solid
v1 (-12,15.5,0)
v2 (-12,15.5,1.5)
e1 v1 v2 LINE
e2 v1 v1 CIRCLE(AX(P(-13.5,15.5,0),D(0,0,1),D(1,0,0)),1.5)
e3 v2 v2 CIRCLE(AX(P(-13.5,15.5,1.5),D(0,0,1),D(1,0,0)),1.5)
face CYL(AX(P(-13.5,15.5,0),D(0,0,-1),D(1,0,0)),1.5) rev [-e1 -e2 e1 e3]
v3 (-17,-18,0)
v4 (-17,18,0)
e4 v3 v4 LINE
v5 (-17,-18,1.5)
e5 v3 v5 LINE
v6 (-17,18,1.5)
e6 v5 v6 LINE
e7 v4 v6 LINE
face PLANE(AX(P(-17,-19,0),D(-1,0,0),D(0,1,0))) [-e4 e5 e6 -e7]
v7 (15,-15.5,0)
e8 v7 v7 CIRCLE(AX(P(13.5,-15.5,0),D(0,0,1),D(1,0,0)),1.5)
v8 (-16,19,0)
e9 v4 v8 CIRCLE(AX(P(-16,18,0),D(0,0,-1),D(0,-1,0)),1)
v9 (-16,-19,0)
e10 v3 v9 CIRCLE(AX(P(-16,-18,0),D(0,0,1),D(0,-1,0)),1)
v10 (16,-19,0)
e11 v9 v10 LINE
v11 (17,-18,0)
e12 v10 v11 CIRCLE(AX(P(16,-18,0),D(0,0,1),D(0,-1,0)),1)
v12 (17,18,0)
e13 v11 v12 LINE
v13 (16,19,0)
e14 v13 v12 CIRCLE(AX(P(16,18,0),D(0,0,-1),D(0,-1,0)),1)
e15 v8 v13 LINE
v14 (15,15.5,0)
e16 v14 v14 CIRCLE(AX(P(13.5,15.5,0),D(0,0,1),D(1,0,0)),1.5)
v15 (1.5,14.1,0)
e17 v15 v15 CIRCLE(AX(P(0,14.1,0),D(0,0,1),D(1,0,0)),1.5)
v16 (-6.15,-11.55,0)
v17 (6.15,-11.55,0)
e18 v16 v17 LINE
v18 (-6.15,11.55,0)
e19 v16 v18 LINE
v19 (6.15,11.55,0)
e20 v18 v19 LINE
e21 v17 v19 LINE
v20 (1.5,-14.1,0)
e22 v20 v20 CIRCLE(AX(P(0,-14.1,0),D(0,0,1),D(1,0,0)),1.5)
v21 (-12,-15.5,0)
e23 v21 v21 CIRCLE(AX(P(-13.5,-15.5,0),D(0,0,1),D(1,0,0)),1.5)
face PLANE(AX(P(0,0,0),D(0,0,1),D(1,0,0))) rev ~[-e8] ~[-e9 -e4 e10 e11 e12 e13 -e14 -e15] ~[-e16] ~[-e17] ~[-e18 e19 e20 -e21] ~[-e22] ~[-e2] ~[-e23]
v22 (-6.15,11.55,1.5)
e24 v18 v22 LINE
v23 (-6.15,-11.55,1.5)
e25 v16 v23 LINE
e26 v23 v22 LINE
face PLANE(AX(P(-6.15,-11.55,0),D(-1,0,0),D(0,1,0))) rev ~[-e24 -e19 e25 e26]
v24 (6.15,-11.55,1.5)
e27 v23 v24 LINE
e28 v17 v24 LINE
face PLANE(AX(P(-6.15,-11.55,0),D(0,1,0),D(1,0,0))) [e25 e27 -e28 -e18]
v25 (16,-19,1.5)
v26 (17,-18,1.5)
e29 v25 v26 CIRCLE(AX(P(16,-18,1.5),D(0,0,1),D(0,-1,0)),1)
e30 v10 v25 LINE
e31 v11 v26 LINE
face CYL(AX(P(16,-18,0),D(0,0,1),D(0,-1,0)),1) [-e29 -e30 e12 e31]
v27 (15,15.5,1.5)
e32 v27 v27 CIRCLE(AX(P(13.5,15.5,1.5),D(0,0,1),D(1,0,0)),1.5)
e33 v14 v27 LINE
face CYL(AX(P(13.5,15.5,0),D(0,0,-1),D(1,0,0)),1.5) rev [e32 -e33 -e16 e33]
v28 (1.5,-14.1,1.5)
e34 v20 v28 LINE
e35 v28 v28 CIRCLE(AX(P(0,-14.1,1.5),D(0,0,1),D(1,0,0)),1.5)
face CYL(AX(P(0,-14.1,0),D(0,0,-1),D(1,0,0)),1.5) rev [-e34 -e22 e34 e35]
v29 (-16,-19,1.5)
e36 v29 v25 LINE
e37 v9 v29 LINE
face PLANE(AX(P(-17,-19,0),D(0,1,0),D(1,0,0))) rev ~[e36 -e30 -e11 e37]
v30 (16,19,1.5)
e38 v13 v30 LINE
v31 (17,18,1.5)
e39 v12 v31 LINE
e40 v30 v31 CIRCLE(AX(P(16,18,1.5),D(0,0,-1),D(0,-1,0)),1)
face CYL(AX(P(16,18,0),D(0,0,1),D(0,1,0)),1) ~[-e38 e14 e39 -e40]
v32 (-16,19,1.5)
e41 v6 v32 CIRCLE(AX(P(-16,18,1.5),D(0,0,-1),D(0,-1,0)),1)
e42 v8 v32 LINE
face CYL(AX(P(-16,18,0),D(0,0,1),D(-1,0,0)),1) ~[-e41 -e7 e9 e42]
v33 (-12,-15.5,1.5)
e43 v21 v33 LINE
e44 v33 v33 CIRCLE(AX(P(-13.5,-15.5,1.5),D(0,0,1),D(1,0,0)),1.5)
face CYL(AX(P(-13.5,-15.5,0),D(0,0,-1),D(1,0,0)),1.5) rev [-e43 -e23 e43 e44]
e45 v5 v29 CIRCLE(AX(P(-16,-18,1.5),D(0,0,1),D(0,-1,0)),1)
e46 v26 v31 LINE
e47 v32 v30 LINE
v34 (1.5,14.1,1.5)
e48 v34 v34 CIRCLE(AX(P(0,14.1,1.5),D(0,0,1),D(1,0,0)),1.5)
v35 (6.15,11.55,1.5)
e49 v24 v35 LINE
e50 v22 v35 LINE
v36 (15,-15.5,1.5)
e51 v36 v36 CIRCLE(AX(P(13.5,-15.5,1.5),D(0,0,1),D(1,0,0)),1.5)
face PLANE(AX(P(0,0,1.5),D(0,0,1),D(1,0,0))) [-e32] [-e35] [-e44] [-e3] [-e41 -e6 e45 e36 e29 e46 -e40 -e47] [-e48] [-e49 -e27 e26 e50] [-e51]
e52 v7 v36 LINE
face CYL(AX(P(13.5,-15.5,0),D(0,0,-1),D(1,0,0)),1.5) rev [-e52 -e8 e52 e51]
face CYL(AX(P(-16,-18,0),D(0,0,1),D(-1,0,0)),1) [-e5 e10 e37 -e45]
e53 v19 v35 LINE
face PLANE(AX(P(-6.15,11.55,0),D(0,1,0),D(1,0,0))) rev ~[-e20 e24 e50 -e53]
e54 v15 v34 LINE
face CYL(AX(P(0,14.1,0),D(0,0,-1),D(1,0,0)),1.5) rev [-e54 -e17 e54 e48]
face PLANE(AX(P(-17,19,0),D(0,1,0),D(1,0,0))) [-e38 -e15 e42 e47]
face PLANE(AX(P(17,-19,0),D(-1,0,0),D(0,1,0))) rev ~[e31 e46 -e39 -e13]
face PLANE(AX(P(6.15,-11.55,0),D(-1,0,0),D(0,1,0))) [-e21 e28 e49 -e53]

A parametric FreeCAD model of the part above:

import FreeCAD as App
import Part
import Sketcher

V = App.Vector
Q = App.Units.Quantity


def edges_at(feature, points):
    """Names of the edges that pass closest to the given points."""
    edges = feature.Shape.Edges
    near = lambda p: min(range(len(edges)), key=lambda i: edges[i].distToShape(Part.Vertex(*p))[0])
    return sorted({f"Edge{near(p) + 1}" for p in points})

doc = App.newDocument("Part")
body = doc.addObject("PartDesign::Body", "Body")

# Sketch on XY plane
sketch1 = body.newObject("Sketcher::SketchObject", "Sketch")
sketch1.AttachmentSupport = (doc.getObject("XY_Plane"), [""])
sketch1.MapMode = "FlatFace"
sketch1.addGeometry([
    Part.LineSegment(V(-17, 19, 0), V(-17, -19, 0)),  # 0
    Part.LineSegment(V(-17, -19, 0), V(17, -19, 0)),  # 1
    Part.LineSegment(V(17, -19, 0), V(17, 19, 0)),  # 2
    Part.LineSegment(V(17, 19, 0), V(-17, 19, 0)),  # 3
    Part.Circle(V(-13.5, -15.5, 0), V(0, 0, 1), 1.5),  # 4
    Part.Circle(V(0, -14.1, 0), V(0, 0, 1), 1.5),  # 5
    Part.Circle(V(13.5, -15.5, 0), V(0, 0, 1), 1.5),  # 6
    Part.Circle(V(-13.5, 15.5, 0), V(0, 0, 1), 1.5),  # 7
    Part.LineSegment(V(6.2, -11.6, 0), V(-6.2, -11.6, 0)),  # 8
    Part.LineSegment(V(-6.2, -11.6, 0), V(-6.2, 11.6, 0)),  # 9
    Part.LineSegment(V(-6.2, 11.6, 0), V(6.2, 11.6, 0)),  # 10
    Part.LineSegment(V(6.2, 11.6, 0), V(6.2, -11.6, 0)),  # 11
    Part.Circle(V(0, 14.1, 0), V(0, 0, 1), 1.5),  # 12
    Part.Circle(V(13.5, 15.5, 0), V(0, 0, 1), 1.5),  # 13
], False)
sketch1.addConstraint([
    Sketcher.Constraint("Coincident", 0, 2, 1, 1),
    Sketcher.Constraint("Coincident", 1, 2, 2, 1),
    Sketcher.Constraint("Coincident", 2, 2, 3, 1),
    Sketcher.Constraint("Coincident", 3, 2, 0, 1),
    Sketcher.Constraint("Coincident", 8, 2, 9, 1),
    Sketcher.Constraint("Coincident", 9, 2, 10, 1),
    Sketcher.Constraint("Coincident", 10, 2, 11, 1),
    Sketcher.Constraint("Coincident", 11, 2, 8, 1),
    Sketcher.Constraint("Vertical", 0),
    Sketcher.Constraint("Horizontal", 1),
    Sketcher.Constraint("Vertical", 2),
    Sketcher.Constraint("Horizontal", 3),
    Sketcher.Constraint("Horizontal", 8),
    Sketcher.Constraint("Vertical", 9),
    Sketcher.Constraint("Horizontal", 10),
    Sketcher.Constraint("Vertical", 11),
    Sketcher.Constraint("Equal", 4, 5),
    Sketcher.Constraint("Equal", 5, 6),
    Sketcher.Constraint("Equal", 6, 7),
    Sketcher.Constraint("Equal", 7, 12),
    Sketcher.Constraint("Equal", 12, 13),
    Sketcher.Constraint("Symmetric", 6, 3, 7, 3, -1, 1),
    Sketcher.Constraint("Symmetric", 5, 3, 12, 3, -1, 1),
    Sketcher.Constraint("Symmetric", 4, 3, 13, 3, -1, 1),
    Sketcher.Constraint("Symmetric", 0, 2, 2, 2, -1, 1),
    Sketcher.Constraint("Symmetric", 8, 2, 10, 2, -1, 1),
    Sketcher.Constraint("Symmetric", 4, 3, 6, 3, -2),
    Sketcher.Constraint("PointOnObject", 5, 3, -2),
    Sketcher.Constraint("Diameter", 4, Q("3 mm")),
    Sketcher.Constraint("DistanceX", 1, 1, 1, 2, Q("34 mm")),
    Sketcher.Constraint("DistanceY", 0, 2, 0, 1, Q("38 mm")),
    Sketcher.Constraint("DistanceX", 8, 2, 8, 1, Q("12.3 mm")),
    Sketcher.Constraint("DistanceY", 9, 1, 9, 2, Q("23.1 mm")),
    Sketcher.Constraint("DistanceX", 4, 3, 6, 3, Q("27 mm")),
    Sketcher.Constraint("DistanceY", 4, 3, 7, 3, Q("31 mm")),
    Sketcher.Constraint("DistanceY", 5, 3, -1, 1, Q("14.1 mm")),
])
pad1 = body.newObject("PartDesign::Pad", "Pad")
pad1.Profile = sketch1
pad1.Length = 1.5
doc.recompute()

fillet = body.newObject("PartDesign::Fillet", "Fillet")
fillet.Base = (pad1, edges_at(pad1, [
    (-17, 19, 0.75),
    (17, 19, 0.75),
    (17, -19, 0.75),
    (-17, -19, 0.75),
]))
fillet.Radius = 1

doc.recompute()
